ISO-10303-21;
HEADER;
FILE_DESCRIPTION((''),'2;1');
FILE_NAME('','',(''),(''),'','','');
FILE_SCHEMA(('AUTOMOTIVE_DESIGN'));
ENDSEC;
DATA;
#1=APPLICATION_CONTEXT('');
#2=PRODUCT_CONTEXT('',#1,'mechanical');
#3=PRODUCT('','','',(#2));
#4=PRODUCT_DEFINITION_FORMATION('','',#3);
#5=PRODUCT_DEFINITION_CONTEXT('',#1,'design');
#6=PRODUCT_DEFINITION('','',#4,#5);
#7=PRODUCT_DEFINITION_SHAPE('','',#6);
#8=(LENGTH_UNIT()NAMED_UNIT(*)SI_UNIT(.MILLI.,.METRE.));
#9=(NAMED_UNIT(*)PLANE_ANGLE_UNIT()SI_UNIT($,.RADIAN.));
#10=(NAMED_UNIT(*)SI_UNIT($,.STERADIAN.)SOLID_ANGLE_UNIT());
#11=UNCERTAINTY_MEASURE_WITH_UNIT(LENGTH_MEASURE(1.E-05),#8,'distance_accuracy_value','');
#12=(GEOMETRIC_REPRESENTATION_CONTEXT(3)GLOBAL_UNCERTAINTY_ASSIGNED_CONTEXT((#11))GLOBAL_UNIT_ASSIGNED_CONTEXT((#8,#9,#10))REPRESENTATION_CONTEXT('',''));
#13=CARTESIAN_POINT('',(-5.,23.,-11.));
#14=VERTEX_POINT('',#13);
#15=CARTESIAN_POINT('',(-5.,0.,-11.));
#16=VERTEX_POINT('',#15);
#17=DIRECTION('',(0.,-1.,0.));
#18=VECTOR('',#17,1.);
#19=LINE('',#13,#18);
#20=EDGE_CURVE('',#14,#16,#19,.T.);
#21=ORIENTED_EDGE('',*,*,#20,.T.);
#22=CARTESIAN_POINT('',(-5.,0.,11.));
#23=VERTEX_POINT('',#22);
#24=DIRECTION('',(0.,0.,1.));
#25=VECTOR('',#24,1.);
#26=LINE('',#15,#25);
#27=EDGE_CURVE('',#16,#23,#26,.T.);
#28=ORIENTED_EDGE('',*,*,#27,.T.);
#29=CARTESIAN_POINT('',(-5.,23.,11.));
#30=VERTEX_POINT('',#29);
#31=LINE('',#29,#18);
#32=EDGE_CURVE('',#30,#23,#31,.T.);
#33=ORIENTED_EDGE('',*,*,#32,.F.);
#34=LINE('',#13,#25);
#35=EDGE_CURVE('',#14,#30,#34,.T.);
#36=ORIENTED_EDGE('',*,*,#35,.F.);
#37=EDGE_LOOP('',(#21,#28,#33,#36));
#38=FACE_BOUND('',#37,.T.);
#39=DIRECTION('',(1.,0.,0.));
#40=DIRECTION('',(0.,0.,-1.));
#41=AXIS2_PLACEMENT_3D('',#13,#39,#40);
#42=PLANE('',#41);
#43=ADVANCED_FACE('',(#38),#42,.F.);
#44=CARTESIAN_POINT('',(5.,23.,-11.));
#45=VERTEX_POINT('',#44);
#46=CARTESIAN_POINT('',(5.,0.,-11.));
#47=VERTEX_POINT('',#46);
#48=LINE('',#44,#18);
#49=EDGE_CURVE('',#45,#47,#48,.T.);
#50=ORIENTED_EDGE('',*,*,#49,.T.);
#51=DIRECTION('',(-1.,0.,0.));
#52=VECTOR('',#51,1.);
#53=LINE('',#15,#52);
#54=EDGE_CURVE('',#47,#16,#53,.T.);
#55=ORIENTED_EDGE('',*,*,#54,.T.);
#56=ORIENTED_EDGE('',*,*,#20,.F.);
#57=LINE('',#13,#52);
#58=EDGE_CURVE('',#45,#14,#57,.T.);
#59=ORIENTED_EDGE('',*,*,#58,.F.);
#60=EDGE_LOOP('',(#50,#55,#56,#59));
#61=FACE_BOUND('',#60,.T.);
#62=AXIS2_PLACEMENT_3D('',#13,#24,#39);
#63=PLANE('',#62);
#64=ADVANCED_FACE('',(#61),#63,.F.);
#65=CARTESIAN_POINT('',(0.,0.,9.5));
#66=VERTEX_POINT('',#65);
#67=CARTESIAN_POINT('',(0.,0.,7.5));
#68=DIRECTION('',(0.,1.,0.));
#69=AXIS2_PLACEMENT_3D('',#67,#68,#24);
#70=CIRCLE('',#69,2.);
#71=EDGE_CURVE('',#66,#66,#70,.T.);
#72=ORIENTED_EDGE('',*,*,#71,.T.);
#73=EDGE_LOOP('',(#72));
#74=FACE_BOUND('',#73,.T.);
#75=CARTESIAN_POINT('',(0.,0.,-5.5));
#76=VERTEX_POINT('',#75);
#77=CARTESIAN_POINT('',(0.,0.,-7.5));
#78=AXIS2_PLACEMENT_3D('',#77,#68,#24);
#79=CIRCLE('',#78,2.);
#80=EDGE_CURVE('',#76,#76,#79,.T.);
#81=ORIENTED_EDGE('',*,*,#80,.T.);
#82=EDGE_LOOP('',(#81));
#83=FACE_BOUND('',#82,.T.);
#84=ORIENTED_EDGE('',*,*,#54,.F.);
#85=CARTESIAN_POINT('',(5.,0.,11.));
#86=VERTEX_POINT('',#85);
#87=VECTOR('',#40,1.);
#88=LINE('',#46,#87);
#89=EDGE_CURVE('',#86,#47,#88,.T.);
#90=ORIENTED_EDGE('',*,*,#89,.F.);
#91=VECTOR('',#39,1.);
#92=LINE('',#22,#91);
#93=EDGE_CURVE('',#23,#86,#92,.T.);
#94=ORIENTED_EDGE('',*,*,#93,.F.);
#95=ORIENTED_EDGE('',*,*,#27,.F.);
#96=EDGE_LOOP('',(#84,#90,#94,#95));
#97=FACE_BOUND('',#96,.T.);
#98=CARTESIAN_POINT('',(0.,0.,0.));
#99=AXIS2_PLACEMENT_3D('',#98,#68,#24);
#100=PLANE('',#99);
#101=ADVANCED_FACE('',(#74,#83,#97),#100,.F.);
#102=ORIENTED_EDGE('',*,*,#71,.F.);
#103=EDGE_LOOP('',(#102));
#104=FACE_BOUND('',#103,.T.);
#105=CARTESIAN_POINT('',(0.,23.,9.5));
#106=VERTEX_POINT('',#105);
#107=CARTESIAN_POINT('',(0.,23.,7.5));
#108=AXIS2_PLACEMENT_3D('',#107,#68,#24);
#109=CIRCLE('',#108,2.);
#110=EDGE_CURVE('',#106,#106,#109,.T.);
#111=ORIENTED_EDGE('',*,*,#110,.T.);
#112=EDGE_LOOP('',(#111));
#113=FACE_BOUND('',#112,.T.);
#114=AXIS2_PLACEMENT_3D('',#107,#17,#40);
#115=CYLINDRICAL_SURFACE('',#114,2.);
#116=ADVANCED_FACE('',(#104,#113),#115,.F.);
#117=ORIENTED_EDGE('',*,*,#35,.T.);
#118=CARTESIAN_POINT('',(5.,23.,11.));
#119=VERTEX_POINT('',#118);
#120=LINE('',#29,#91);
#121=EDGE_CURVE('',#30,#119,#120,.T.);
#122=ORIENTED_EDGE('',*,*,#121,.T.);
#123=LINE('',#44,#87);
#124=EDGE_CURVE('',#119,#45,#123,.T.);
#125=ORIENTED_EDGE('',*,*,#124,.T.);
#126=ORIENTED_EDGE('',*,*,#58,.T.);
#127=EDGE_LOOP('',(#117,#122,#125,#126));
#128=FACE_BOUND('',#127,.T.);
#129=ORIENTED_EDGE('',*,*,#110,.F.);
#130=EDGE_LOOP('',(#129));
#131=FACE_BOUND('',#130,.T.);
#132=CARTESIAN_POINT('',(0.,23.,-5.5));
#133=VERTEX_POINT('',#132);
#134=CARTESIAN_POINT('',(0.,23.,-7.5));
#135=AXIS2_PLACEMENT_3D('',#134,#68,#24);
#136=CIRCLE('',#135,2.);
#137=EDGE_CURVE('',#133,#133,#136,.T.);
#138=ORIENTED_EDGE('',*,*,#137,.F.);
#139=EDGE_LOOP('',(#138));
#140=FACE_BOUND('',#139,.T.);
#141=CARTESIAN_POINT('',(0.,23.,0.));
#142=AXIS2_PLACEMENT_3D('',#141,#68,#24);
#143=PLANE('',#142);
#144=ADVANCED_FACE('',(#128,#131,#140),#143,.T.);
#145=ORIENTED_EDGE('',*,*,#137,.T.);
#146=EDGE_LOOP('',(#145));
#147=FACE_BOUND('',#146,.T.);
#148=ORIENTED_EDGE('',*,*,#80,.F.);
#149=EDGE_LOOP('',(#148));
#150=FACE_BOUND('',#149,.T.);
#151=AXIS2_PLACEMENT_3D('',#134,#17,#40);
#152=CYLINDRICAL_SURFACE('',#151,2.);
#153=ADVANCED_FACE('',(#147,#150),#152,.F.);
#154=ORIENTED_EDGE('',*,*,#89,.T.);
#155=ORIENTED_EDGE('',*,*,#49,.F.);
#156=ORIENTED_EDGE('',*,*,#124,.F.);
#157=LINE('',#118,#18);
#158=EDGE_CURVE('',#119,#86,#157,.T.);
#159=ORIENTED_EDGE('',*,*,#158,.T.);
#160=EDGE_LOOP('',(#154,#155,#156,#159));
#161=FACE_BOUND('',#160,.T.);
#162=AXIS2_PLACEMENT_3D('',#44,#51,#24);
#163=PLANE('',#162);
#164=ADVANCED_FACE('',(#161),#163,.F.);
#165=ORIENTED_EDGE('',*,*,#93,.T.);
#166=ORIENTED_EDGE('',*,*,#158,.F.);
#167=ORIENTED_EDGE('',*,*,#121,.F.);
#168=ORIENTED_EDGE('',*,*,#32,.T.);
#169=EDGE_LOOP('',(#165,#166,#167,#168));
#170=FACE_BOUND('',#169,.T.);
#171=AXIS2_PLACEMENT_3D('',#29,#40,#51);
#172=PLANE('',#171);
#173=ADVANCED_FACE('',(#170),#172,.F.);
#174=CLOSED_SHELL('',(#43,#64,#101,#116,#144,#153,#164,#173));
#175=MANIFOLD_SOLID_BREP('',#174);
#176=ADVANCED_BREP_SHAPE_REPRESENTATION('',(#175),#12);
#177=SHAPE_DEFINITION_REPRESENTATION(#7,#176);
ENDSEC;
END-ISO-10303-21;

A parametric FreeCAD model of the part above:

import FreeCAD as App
import Part
import Sketcher
from FreeCAD import Vector
Q = App.Units.Quantity

doc = App.newDocument("Part")
params = doc.addObject("Spreadsheet::Sheet", "Params")
for row, (alias, value) in enumerate([
    ("sketch1_diameter", "4 mm"),
    ("sketch1_width", "10 mm"),
    ("sketch1_height", "22 mm"),
    ("pad1_length", "23 mm"),
], start=1):
    params.set(f"A{row}", alias)
    params.set(f"B{row}", "=" + value)
    params.setAlias(f"B{row}", alias)

body = doc.addObject("PartDesign::Body", "Body")

# Sketch on XZ plane
sketch1 = body.newObject("Sketcher::SketchObject", "Sketch")
sketch1.AttachmentSupport = (doc.getObject("XZ_Plane"), [""])
sketch1.MapMode = "FlatFace"
sketch1.addGeometry([
    Part.LineSegment(Vector(-5, -11, 0), Vector(-5, 11, 0)),  # 0
    Part.LineSegment(Vector(-5, 11, 0), Vector(5, 11, 0)),  # 1
    Part.LineSegment(Vector(5, 11, 0), Vector(5, -11, 0)),  # 2
    Part.LineSegment(Vector(5, -11, 0), Vector(-5, -11, 0)),  # 3
    Part.Circle(Vector(0, 7.5, 0), Vector(0, 0, 1), 2),  # 4
    Part.Circle(Vector(0, -7.5, 0), Vector(0, 0, 1), 2),  # 5
], False)
sketch1.addConstraint([
    Sketcher.Constraint("Coincident", 0, 2, 1, 1),
    Sketcher.Constraint("Coincident", 1, 2, 2, 1),
    Sketcher.Constraint("Coincident", 2, 2, 3, 1),
    Sketcher.Constraint("Coincident", 3, 2, 0, 1),
    Sketcher.Constraint("Vertical", 0),
    Sketcher.Constraint("Horizontal", 1),
    Sketcher.Constraint("Vertical", 2),
    Sketcher.Constraint("Horizontal", 3),
    Sketcher.Constraint("Equal", 4, 5),
    Sketcher.Constraint("Symmetric", 4, 3, 5, 3, -1, 1),
    Sketcher.Constraint("Symmetric", 0, 2, 2, 2, -1, 1),
    Sketcher.Constraint("PointOnObject", 4, 3, -2),
    Sketcher.Constraint("Diameter", 4, Q("4 mm")),
    Sketcher.Constraint("DistanceX", 1, 1, 1, 2, Q("10 mm")),
    Sketcher.Constraint("DistanceY", 0, 1, 0, 2, Q("22 mm")),
    Sketcher.Constraint("DistanceY", 5, 3, 4, 3, Q("15 mm")),
])
sketch1.setExpression("Constraints[12]", "Params.sketch1_diameter")
sketch1.setExpression("Constraints[13]", "Params.sketch1_width")
sketch1.setExpression("Constraints[14]", "Params.sketch1_height")
pad1 = body.newObject("PartDesign::Pad", "Pad")
pad1.Profile = sketch1
pad1.setExpression("Length", "Params.pad1_length")
pad1.Reversed = True

doc.recompute()
